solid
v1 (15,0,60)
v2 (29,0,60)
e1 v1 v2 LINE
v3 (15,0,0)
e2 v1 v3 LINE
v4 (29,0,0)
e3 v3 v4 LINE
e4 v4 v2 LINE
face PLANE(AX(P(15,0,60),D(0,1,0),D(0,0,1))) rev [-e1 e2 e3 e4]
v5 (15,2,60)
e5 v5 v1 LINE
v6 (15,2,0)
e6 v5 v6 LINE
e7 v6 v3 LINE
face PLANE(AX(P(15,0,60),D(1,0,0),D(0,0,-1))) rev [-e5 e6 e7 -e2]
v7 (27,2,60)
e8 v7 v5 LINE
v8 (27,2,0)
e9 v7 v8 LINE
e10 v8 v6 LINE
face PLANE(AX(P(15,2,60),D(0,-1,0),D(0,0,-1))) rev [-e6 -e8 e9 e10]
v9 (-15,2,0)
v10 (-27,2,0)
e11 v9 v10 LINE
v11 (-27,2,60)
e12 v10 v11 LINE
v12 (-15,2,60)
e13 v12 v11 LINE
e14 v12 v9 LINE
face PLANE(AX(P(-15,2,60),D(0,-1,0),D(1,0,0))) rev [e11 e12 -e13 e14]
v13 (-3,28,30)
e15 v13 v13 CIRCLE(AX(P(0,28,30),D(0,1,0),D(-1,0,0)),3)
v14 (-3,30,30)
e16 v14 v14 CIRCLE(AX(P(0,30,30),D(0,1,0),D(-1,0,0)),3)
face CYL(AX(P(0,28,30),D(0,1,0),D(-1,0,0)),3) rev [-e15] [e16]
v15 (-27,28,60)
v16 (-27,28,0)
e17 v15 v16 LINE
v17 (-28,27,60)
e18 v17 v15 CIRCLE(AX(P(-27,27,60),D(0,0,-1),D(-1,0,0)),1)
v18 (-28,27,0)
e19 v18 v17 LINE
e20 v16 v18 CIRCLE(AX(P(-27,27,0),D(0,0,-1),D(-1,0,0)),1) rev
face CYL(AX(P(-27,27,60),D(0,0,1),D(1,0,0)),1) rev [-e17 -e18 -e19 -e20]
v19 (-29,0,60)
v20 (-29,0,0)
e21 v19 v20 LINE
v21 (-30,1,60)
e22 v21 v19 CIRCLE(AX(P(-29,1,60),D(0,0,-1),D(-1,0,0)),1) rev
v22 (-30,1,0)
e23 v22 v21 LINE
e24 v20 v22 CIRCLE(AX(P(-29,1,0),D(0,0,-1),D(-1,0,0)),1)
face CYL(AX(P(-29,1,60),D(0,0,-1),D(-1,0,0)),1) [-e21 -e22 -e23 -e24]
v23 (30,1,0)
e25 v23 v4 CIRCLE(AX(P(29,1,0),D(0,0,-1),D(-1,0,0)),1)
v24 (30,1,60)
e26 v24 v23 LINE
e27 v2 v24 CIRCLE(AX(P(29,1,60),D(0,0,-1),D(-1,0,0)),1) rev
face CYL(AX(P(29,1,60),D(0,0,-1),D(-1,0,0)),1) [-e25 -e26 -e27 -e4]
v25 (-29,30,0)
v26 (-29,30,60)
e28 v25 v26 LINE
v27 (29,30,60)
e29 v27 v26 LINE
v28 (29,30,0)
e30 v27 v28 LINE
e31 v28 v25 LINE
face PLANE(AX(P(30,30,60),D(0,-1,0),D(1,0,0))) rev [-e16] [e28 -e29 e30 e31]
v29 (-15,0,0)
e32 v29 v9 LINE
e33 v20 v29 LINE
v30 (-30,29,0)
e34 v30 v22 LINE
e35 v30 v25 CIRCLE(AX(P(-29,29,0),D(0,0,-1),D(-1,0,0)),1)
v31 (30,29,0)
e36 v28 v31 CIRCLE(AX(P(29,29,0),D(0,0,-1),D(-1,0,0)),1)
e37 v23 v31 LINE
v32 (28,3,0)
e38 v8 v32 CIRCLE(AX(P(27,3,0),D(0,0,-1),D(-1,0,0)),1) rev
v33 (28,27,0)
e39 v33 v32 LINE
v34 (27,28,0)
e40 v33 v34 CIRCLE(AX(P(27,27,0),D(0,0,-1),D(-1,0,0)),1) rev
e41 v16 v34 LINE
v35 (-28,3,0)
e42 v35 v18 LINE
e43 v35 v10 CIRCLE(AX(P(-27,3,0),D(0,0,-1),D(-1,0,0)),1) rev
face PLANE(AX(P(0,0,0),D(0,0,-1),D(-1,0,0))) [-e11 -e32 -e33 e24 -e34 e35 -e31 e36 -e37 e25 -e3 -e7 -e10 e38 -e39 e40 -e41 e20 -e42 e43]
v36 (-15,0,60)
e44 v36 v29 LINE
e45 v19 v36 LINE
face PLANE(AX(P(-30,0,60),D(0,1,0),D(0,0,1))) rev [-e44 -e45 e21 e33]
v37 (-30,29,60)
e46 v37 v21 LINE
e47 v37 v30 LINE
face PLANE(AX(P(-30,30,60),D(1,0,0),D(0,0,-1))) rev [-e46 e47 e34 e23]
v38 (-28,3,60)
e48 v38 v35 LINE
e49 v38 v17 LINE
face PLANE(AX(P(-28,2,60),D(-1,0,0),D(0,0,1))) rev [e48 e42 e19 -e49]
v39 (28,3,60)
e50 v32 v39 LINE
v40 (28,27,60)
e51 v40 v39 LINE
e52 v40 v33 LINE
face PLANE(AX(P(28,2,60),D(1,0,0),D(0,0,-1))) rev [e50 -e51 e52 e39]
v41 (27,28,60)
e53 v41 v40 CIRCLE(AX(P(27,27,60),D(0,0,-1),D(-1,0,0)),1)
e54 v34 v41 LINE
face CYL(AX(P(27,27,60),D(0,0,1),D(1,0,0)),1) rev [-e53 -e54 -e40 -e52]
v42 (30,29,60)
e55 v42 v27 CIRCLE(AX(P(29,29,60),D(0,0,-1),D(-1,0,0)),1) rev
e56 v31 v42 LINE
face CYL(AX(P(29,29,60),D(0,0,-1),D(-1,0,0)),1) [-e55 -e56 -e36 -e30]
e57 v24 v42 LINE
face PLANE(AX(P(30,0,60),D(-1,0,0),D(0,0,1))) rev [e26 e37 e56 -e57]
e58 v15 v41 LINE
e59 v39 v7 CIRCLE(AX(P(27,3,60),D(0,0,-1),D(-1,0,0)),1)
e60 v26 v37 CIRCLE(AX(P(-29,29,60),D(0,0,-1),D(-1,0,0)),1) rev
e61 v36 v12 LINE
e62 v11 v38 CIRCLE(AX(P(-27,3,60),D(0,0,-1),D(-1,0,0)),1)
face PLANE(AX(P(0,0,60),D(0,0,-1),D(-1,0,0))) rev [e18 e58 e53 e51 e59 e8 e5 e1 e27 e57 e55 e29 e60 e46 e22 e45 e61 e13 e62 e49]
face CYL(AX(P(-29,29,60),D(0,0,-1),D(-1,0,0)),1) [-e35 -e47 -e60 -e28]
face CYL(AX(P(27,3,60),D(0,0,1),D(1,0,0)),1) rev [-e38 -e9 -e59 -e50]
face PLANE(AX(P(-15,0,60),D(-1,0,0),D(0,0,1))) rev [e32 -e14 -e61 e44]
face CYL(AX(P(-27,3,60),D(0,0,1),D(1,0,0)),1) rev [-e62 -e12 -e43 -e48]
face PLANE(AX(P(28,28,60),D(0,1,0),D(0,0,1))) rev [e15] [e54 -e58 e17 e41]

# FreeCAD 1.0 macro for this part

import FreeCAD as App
import Part
import Sketcher


def edges_at(feature, points):
    """Names of the edges that pass closest to the given points."""
    edges = feature.Shape.Edges
    near = lambda p: min(range(len(edges)), key=lambda i: edges[i].distToShape(Part.Vertex(*p))[0])
    return sorted({f"Edge{near(p) + 1}" for p in points})


def add_polygon(sketch, points):
    """Adds a closed chain of lines whose ends are joined by coincident constraints."""
    first, n = sketch.GeometryCount, len(points)
    for a, b in zip(points, points[1:] + points[:1]):
        sketch.addGeometry(Part.LineSegment(App.Vector(*a, 0), App.Vector(*b, 0)), False)
    for i in range(n):
        sketch.addConstraint(Sketcher.Constraint("Coincident", first + i, 2, first + (i + 1) % n, 1))

doc = App.newDocument("Part")
body = doc.addObject("PartDesign::Body", "Body")

# Sketch on XY plane
sketch1 = body.newObject("Sketcher::SketchObject", "Sketch")
sketch1.AttachmentSupport = (doc.getObject("XY_Plane"), [""])
sketch1.MapMode = "FlatFace"
add_polygon(sketch1, [(-15, 0), (-15, 2), (-28, 2), (-28, 28), (28, 28), (28, 2), (15, 2), (15, 0), (30, 0), (30, 30), (-30, 30), (-30, 0)])  # lines 0-11
sketch1.addConstraint(Sketcher.Constraint("Vertical", 0))
sketch1.addConstraint(Sketcher.Constraint("Horizontal", 1))
sketch1.addConstraint(Sketcher.Constraint("Vertical", 2))
sketch1.addConstraint(Sketcher.Constraint("Horizontal", 3))
sketch1.addConstraint(Sketcher.Constraint("Vertical", 4))
sketch1.addConstraint(Sketcher.Constraint("Horizontal", 5))
sketch1.addConstraint(Sketcher.Constraint("Vertical", 6))
sketch1.addConstraint(Sketcher.Constraint("Horizontal", 7))
sketch1.addConstraint(Sketcher.Constraint("Vertical", 8))
sketch1.addConstraint(Sketcher.Constraint("Horizontal", 9))
sketch1.addConstraint(Sketcher.Constraint("Vertical", 10))
sketch1.addConstraint(Sketcher.Constraint("Horizontal", 11))
sketch1.addConstraint(Sketcher.Constraint("Symmetric", 7, 2, 10, 2, -1, 1))
sketch1.addConstraint(Sketcher.Constraint("Symmetric", 1, 2, 4, 2, -2))
sketch1.addConstraint(Sketcher.Constraint("Symmetric", 6, 2, 11, 2, -2))
sketch1.addConstraint(Sketcher.Constraint("DistanceX", 1, 2, 1, 1, 13.0))
sketch1.addConstraint(Sketcher.Constraint("DistanceX", 3, 1, 3, 2, 56.0))
sketch1.addConstraint(Sketcher.Constraint("DistanceX", 7, 1, 7, 2, 15.0))
sketch1.addConstraint(Sketcher.Constraint("DistanceY", 0, 1, 0, 2, 2.0))
sketch1.addConstraint(Sketcher.Constraint("DistanceY", 2, 1, 2, 2, 26.0))
sketch1.addConstraint(Sketcher.Constraint("DistanceY", 8, 1, 8, 2, 30.0))
pad1 = body.newObject("PartDesign::Pad", "Pad")
pad1.Profile = sketch1
pad1.Length = 60
doc.recompute()

fillet = body.newObject("PartDesign::Fillet", "Fillet")
fillet.Base = (pad1, edges_at(pad1, [
    (28, 2, 30),
    (28, 28, 30),
    (-28, 28, 30),
    (-28, 2, 30),
    (-30, 0, 30),
    (-30, 30, 30),
    (30, 30, 30),
    (30, 0, 30),
]))
fillet.Radius = 1

# Sketch on XZ plane
sketch2 = body.newObject("Sketcher::SketchObject", "Sketch001")
sketch2.AttachmentSupport = (doc.getObject("XZ_Plane"), [""])
sketch2.MapMode = "FlatFace"
sketch2.AttachmentOffset = App.Placement(App.Vector(0, 0, -30), App.Rotation())
sketch2.addGeometry(Part.Circle(App.Vector(0, 30, 0), App.Vector(0, 0, 1), 3), False)
sketch2.addConstraint(Sketcher.Constraint("PointOnObject", 0, 3, -2))
sketch2.addConstraint(Sketcher.Constraint("Diameter", 0, 6.0))
sketch2.addConstraint(Sketcher.Constraint("DistanceY", -1, 1, 0, 3, 30.0))
pocket1 = body.newObject("PartDesign::Pocket", "Pocket")
pocket1.Profile = sketch2
pocket1.Length = 2
pocket1.Reversed = True

doc.recompute()
